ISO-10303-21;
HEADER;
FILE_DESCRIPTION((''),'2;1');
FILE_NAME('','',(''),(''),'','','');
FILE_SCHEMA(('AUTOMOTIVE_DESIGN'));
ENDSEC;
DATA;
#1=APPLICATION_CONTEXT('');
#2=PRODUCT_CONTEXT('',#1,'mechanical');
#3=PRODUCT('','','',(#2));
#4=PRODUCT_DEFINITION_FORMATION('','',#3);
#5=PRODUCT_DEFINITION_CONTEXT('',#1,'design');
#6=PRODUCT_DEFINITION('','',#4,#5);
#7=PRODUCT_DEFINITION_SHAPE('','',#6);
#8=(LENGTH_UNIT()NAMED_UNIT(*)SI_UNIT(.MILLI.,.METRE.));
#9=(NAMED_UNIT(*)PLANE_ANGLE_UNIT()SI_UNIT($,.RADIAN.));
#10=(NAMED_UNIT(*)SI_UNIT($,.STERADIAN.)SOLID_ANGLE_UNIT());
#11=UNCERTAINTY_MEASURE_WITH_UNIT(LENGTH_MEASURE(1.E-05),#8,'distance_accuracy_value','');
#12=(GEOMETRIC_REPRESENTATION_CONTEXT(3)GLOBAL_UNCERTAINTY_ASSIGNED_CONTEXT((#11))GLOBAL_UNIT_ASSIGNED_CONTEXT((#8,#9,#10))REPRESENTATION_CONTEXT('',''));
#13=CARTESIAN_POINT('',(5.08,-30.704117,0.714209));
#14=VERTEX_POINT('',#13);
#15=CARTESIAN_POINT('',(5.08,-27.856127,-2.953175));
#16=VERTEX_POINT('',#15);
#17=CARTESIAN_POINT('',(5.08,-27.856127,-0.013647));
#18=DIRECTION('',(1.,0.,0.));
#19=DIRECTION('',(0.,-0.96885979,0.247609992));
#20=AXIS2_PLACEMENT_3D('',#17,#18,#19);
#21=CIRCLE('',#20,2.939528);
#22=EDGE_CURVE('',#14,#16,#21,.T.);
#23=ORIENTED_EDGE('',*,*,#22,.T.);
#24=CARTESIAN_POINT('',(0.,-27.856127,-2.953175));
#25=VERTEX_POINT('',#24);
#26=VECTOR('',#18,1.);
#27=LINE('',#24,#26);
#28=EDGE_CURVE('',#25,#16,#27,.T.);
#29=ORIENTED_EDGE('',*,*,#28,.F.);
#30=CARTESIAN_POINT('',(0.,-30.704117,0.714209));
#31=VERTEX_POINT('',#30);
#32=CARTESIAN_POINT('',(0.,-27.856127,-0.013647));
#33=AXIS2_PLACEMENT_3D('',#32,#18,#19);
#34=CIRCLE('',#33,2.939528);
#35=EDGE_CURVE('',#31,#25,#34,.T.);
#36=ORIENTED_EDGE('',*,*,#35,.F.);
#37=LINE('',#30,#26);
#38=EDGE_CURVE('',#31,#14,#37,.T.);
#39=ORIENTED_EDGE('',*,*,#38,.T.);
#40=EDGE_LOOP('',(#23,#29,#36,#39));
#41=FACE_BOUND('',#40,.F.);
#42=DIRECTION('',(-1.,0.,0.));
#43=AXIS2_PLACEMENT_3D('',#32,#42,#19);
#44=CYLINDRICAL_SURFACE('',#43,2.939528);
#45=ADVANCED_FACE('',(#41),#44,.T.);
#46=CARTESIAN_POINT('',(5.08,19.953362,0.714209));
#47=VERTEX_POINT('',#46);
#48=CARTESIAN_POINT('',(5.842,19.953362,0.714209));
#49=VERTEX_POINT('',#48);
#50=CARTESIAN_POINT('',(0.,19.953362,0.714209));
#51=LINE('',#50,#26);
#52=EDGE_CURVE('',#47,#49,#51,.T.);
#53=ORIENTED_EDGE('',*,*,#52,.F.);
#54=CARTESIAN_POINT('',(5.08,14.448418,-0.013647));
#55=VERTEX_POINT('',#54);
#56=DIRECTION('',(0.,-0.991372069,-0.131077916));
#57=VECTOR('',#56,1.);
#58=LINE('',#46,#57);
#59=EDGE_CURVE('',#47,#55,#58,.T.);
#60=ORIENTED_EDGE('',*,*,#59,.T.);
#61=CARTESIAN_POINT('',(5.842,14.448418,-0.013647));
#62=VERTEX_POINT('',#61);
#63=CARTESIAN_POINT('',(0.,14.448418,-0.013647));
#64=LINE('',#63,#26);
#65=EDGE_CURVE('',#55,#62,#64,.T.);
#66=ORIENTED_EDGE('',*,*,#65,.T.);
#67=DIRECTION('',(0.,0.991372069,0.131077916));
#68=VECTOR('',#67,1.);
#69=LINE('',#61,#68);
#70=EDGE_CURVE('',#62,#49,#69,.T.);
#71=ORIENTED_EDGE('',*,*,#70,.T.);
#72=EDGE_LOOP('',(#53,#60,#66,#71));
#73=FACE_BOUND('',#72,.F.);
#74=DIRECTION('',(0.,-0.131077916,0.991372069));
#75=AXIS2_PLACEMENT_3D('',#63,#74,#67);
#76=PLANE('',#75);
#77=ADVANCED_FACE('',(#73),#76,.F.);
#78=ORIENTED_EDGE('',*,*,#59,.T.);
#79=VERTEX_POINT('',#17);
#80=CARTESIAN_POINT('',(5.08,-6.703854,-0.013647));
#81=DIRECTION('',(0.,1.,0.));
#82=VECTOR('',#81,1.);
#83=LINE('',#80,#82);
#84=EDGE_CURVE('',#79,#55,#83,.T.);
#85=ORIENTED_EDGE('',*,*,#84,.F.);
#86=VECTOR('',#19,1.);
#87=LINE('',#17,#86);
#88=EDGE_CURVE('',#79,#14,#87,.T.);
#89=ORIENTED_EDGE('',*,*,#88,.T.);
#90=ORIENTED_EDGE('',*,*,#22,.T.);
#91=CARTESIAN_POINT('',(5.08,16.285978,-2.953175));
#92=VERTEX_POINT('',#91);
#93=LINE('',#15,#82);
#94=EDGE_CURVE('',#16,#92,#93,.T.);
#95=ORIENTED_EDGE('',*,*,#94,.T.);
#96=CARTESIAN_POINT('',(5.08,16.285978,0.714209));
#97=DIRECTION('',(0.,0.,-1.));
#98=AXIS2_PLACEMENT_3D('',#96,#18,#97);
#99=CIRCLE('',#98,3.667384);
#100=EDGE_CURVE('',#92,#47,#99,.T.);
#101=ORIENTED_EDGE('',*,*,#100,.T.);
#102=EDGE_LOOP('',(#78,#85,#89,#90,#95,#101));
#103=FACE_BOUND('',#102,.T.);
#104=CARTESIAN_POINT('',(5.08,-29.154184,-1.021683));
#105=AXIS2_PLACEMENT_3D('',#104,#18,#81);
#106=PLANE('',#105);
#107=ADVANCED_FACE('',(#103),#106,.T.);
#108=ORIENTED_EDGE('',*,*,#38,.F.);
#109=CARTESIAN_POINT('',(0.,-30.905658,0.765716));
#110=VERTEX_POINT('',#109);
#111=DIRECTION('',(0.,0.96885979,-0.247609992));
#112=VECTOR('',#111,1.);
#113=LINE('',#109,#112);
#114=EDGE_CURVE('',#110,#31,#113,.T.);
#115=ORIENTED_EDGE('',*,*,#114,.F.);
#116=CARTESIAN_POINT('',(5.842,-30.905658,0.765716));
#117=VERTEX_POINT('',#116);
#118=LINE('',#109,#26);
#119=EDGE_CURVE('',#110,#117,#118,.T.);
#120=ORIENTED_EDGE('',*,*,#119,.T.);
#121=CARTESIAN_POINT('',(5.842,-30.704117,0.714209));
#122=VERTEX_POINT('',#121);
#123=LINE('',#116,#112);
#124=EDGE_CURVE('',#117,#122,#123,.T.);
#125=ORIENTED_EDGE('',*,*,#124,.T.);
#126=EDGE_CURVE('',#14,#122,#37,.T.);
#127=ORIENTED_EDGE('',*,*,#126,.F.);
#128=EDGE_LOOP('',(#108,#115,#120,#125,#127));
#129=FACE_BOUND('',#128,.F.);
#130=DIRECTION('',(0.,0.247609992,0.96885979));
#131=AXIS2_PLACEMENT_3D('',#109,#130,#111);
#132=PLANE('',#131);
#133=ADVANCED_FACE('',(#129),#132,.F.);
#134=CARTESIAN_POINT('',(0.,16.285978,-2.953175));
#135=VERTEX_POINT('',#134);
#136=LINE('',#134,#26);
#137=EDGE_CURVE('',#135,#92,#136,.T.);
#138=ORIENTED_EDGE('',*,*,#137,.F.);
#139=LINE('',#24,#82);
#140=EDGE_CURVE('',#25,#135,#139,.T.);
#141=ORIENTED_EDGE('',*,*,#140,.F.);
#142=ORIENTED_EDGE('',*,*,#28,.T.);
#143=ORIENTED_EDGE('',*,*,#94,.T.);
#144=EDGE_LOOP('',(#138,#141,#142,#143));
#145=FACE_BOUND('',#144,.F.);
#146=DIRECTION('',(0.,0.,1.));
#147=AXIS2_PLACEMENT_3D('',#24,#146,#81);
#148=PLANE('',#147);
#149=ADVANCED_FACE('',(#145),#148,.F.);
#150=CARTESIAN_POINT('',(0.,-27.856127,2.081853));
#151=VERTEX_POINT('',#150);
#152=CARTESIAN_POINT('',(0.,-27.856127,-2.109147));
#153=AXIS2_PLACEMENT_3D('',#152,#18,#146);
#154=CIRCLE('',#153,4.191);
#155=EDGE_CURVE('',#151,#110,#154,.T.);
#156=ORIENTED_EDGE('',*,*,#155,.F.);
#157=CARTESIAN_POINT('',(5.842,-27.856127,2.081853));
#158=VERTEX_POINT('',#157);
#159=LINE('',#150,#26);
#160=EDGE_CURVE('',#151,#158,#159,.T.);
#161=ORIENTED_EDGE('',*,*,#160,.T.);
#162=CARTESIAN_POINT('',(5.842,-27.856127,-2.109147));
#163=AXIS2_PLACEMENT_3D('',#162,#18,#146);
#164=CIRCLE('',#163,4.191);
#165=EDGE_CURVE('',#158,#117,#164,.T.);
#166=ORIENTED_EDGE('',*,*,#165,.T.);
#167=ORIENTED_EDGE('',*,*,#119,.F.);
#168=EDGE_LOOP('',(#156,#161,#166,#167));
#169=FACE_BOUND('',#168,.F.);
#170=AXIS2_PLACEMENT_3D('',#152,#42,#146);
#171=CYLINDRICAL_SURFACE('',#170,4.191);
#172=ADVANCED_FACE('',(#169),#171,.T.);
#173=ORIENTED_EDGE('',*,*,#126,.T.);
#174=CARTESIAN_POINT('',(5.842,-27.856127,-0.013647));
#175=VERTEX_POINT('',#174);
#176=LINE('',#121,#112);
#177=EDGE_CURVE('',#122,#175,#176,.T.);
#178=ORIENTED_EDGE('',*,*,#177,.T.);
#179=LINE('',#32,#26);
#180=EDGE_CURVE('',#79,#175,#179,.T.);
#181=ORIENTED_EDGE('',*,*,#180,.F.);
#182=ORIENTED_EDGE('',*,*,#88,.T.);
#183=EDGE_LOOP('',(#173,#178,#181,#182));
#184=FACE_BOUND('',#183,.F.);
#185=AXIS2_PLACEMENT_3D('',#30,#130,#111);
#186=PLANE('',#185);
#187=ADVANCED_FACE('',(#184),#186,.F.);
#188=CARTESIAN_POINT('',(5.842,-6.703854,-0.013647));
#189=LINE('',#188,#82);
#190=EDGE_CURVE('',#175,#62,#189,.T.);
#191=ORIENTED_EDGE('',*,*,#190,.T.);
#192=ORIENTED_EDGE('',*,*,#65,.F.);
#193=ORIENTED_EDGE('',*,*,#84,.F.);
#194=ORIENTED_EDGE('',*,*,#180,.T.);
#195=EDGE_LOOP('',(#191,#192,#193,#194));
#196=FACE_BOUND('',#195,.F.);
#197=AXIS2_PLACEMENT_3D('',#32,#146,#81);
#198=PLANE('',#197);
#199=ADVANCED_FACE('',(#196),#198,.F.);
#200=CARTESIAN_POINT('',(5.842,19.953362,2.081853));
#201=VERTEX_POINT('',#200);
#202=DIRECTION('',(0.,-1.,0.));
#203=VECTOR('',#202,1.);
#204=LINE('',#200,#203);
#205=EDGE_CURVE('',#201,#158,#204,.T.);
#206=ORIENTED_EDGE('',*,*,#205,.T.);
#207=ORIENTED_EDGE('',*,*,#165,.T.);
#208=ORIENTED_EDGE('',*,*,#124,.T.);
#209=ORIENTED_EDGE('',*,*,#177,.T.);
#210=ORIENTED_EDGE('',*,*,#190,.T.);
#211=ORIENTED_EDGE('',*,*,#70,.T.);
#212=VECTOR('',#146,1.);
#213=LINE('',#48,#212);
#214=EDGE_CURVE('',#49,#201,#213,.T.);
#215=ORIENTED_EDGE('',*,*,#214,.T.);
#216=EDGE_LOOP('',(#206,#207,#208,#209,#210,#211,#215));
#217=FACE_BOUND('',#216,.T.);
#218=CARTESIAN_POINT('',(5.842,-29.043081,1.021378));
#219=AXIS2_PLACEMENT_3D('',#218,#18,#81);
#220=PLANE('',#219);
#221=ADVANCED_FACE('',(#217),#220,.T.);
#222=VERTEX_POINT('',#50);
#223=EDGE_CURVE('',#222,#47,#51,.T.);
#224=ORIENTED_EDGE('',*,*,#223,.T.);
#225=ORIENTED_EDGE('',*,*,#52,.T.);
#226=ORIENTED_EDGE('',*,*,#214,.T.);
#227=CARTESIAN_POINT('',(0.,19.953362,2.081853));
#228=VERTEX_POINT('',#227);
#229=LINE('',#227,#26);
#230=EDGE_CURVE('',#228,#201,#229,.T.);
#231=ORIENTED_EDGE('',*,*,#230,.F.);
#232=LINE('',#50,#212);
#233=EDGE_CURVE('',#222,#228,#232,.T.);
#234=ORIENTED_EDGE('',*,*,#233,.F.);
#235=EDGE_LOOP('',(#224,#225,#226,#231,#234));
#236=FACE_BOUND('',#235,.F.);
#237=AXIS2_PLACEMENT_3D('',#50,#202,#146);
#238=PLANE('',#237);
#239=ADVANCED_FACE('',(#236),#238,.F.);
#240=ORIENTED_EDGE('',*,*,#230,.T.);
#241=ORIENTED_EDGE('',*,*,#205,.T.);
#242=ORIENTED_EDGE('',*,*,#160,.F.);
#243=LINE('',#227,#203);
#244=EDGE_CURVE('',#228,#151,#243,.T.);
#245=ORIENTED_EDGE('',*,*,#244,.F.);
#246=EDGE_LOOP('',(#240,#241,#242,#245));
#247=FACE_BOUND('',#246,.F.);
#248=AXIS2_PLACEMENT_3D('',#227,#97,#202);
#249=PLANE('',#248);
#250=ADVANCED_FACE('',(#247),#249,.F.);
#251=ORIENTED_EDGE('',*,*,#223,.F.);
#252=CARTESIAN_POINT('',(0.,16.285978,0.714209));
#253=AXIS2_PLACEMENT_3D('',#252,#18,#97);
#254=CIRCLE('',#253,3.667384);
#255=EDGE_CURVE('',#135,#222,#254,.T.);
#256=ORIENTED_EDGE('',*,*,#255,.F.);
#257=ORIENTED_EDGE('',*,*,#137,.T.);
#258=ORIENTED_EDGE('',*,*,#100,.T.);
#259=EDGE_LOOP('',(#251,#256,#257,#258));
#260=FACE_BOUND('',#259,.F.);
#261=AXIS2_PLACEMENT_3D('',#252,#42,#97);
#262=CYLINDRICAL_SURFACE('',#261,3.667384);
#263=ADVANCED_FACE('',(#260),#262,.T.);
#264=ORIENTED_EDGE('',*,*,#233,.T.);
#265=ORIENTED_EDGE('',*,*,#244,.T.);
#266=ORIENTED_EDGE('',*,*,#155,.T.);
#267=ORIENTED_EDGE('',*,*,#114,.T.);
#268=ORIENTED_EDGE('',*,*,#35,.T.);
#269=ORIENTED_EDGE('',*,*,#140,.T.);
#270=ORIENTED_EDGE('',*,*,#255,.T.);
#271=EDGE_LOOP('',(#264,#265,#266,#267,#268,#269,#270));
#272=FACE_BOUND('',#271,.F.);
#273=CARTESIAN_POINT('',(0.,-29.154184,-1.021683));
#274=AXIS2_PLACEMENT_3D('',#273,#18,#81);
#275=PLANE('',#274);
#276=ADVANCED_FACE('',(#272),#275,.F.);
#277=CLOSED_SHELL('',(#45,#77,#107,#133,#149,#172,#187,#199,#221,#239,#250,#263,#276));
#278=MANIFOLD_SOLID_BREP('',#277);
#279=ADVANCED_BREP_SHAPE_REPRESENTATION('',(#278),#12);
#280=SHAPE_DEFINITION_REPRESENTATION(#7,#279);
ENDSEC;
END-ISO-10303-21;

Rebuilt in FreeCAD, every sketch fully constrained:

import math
import FreeCAD as App
import Part
import Sketcher
from FreeCAD import Vector
Q = App.Units.Quantity

doc = App.newDocument("Part")
body = doc.addObject("PartDesign::Body", "Body")

sketch1 = body.newObject("Sketcher::SketchObject", "Sketch")
sketch1.AttachmentSupport = (doc.getObject("YZ_Plane"), [""])
sketch1.MapMode = "FlatFace"
sketch1.addGeometry([
    Part.ArcOfCircle(Part.Circle(Vector(-27.86, -2.11, 0), Vector(0, 0, 1), 4.19), math.radians(90), math.radians(137)),
    Part.LineSegment(Vector(-30.91, 0.77, 0), Vector(-30.7, 0.71, 0)),
    Part.LineSegment(Vector(-30.7, 0.71, 0), Vector(-27.86, -0.01, 0)),
    Part.LineSegment(Vector(-27.86, -0.01, 0), Vector(14.45, -0.01, 0)),
    Part.LineSegment(Vector(14.45, -0.01, 0), Vector(19.95, 0.71, 0)),
    Part.LineSegment(Vector(19.95, 0.71, 0), Vector(19.95, 2.08, 0)),
    Part.LineSegment(Vector(19.95, 2.08, 0), Vector(-27.86, 2.08, 0)),
], False)
sketch1.addConstraint([
    Sketcher.Constraint("Coincident", 0, 2, 1, 1),
    Sketcher.Constraint("Coincident", 1, 2, 2, 1),
    Sketcher.Constraint("Coincident", 2, 2, 3, 1),
    Sketcher.Constraint("Coincident", 3, 2, 4, 1),
    Sketcher.Constraint("Coincident", 4, 2, 5, 1),
    Sketcher.Constraint("Coincident", 5, 2, 6, 1),
    Sketcher.Constraint("Tangent", 6, 2, 0, 1),
    Sketcher.Constraint("Horizontal", 3),
    Sketcher.Constraint("Vertical", 5),
    Sketcher.Constraint("Horizontal", 6),
    Sketcher.Constraint("Parallel", 1, 2),
    Sketcher.Constraint("Horizontal", 1, 2, 4, 2),
    Sketcher.Constraint("Vertical", 0, 3, 2, 2),
    Sketcher.Constraint("Radius", 0, Q("0.165 in")),
    Sketcher.Constraint("DistanceY", 0, 3, 2, 2, Q("0.0825 in")),
    Sketcher.Constraint("DistanceX", 6, 2, 6, 1, Q("47.809489 mm")),
    Sketcher.Constraint("Distance", 1, Q("0.208018 mm")),
    Sketcher.Constraint("DistanceX", 3, 1, 3, 2, Q("42.304545 mm")),
    Sketcher.Constraint("DistanceY", 5, 1, 5, 2, Q("1.367644 mm")),
    Sketcher.Constraint("DistanceY", -1, 1, 1, 2, Q("0.714209 mm")),
    Sketcher.Constraint("DistanceX", -1, 1, 3, 2, Q("14.448418 mm")),
])
pad1 = body.newObject("PartDesign::Pad", "Pad")
pad1.Profile = sketch1
pad1.Length = Q("0.23 in")

sketch2 = body.newObject("Sketcher::SketchObject", "Sketch001")
sketch2.AttachmentSupport = (doc.getObject("YZ_Plane"), [""])
sketch2.MapMode = "FlatFace"
sketch2.addGeometry([
    Part.LineSegment(Vector(-27.9, 0, 0), Vector(-30.7, 0.7, 0)),
    Part.ArcOfCircle(Part.Circle(Vector(-27.9, 0, 0), Vector(0, 0, 1), 2.9), math.radians(166), math.radians(270)),
    Part.LineSegment(Vector(-27.9, -3, 0), Vector(16.3, -3, 0)),
    Part.ArcOfCircle(Part.Circle(Vector(16.3, 0.7, 0), Vector(0, 0, 1), 3.7), math.radians(-90), math.radians(0)),
    Part.LineSegment(Vector(20, 0.7, 0), Vector(14.4, 0, 0)),
    Part.LineSegment(Vector(14.4, 0, 0), Vector(-27.9, 0, 0)),
], False)
sketch2.addConstraint([
    Sketcher.Constraint("Coincident", 0, 2, 1, 1),
    Sketcher.Constraint("Tangent", 1, 2, 2, 1),
    Sketcher.Constraint("Tangent", 2, 2, 3, 1),
    Sketcher.Constraint("Coincident", 3, 2, 4, 1),
    Sketcher.Constraint("Coincident", 4, 2, 5, 1),
    Sketcher.Constraint("Coincident", 5, 2, 0, 1),
    Sketcher.Constraint("Horizontal", 2),
    Sketcher.Constraint("Horizontal", 5),
    Sketcher.Constraint("Coincident", 5, 2, 1, 3),
    Sketcher.Constraint("Horizontal", 3, 3, 0, 2),
    Sketcher.Constraint("Horizontal", 0, 2, 3, 2),
    Sketcher.Constraint("Radius", 1, Q("2.939528 mm")),
    Sketcher.Constraint("Radius", 3, Q("3.667384 mm")),
    Sketcher.Constraint("DistanceX", 2, 1, 2, 2, Q("44.142105 mm")),
    Sketcher.Constraint("DistanceX", 5, 2, 5, 1, Q("42.304545 mm")),
    Sketcher.Constraint("DistanceY", -1, 1, 3, 3, Q("0.714209 mm")),
    Sketcher.Constraint("DistanceX", -1, 1, 3, 2, Q("19.953362 mm")),
])
pad2 = body.newObject("PartDesign::Pad", "Pad001")
pad2.Profile = sketch2
pad2.Length = Q("0.2 in")

doc.recompute()
